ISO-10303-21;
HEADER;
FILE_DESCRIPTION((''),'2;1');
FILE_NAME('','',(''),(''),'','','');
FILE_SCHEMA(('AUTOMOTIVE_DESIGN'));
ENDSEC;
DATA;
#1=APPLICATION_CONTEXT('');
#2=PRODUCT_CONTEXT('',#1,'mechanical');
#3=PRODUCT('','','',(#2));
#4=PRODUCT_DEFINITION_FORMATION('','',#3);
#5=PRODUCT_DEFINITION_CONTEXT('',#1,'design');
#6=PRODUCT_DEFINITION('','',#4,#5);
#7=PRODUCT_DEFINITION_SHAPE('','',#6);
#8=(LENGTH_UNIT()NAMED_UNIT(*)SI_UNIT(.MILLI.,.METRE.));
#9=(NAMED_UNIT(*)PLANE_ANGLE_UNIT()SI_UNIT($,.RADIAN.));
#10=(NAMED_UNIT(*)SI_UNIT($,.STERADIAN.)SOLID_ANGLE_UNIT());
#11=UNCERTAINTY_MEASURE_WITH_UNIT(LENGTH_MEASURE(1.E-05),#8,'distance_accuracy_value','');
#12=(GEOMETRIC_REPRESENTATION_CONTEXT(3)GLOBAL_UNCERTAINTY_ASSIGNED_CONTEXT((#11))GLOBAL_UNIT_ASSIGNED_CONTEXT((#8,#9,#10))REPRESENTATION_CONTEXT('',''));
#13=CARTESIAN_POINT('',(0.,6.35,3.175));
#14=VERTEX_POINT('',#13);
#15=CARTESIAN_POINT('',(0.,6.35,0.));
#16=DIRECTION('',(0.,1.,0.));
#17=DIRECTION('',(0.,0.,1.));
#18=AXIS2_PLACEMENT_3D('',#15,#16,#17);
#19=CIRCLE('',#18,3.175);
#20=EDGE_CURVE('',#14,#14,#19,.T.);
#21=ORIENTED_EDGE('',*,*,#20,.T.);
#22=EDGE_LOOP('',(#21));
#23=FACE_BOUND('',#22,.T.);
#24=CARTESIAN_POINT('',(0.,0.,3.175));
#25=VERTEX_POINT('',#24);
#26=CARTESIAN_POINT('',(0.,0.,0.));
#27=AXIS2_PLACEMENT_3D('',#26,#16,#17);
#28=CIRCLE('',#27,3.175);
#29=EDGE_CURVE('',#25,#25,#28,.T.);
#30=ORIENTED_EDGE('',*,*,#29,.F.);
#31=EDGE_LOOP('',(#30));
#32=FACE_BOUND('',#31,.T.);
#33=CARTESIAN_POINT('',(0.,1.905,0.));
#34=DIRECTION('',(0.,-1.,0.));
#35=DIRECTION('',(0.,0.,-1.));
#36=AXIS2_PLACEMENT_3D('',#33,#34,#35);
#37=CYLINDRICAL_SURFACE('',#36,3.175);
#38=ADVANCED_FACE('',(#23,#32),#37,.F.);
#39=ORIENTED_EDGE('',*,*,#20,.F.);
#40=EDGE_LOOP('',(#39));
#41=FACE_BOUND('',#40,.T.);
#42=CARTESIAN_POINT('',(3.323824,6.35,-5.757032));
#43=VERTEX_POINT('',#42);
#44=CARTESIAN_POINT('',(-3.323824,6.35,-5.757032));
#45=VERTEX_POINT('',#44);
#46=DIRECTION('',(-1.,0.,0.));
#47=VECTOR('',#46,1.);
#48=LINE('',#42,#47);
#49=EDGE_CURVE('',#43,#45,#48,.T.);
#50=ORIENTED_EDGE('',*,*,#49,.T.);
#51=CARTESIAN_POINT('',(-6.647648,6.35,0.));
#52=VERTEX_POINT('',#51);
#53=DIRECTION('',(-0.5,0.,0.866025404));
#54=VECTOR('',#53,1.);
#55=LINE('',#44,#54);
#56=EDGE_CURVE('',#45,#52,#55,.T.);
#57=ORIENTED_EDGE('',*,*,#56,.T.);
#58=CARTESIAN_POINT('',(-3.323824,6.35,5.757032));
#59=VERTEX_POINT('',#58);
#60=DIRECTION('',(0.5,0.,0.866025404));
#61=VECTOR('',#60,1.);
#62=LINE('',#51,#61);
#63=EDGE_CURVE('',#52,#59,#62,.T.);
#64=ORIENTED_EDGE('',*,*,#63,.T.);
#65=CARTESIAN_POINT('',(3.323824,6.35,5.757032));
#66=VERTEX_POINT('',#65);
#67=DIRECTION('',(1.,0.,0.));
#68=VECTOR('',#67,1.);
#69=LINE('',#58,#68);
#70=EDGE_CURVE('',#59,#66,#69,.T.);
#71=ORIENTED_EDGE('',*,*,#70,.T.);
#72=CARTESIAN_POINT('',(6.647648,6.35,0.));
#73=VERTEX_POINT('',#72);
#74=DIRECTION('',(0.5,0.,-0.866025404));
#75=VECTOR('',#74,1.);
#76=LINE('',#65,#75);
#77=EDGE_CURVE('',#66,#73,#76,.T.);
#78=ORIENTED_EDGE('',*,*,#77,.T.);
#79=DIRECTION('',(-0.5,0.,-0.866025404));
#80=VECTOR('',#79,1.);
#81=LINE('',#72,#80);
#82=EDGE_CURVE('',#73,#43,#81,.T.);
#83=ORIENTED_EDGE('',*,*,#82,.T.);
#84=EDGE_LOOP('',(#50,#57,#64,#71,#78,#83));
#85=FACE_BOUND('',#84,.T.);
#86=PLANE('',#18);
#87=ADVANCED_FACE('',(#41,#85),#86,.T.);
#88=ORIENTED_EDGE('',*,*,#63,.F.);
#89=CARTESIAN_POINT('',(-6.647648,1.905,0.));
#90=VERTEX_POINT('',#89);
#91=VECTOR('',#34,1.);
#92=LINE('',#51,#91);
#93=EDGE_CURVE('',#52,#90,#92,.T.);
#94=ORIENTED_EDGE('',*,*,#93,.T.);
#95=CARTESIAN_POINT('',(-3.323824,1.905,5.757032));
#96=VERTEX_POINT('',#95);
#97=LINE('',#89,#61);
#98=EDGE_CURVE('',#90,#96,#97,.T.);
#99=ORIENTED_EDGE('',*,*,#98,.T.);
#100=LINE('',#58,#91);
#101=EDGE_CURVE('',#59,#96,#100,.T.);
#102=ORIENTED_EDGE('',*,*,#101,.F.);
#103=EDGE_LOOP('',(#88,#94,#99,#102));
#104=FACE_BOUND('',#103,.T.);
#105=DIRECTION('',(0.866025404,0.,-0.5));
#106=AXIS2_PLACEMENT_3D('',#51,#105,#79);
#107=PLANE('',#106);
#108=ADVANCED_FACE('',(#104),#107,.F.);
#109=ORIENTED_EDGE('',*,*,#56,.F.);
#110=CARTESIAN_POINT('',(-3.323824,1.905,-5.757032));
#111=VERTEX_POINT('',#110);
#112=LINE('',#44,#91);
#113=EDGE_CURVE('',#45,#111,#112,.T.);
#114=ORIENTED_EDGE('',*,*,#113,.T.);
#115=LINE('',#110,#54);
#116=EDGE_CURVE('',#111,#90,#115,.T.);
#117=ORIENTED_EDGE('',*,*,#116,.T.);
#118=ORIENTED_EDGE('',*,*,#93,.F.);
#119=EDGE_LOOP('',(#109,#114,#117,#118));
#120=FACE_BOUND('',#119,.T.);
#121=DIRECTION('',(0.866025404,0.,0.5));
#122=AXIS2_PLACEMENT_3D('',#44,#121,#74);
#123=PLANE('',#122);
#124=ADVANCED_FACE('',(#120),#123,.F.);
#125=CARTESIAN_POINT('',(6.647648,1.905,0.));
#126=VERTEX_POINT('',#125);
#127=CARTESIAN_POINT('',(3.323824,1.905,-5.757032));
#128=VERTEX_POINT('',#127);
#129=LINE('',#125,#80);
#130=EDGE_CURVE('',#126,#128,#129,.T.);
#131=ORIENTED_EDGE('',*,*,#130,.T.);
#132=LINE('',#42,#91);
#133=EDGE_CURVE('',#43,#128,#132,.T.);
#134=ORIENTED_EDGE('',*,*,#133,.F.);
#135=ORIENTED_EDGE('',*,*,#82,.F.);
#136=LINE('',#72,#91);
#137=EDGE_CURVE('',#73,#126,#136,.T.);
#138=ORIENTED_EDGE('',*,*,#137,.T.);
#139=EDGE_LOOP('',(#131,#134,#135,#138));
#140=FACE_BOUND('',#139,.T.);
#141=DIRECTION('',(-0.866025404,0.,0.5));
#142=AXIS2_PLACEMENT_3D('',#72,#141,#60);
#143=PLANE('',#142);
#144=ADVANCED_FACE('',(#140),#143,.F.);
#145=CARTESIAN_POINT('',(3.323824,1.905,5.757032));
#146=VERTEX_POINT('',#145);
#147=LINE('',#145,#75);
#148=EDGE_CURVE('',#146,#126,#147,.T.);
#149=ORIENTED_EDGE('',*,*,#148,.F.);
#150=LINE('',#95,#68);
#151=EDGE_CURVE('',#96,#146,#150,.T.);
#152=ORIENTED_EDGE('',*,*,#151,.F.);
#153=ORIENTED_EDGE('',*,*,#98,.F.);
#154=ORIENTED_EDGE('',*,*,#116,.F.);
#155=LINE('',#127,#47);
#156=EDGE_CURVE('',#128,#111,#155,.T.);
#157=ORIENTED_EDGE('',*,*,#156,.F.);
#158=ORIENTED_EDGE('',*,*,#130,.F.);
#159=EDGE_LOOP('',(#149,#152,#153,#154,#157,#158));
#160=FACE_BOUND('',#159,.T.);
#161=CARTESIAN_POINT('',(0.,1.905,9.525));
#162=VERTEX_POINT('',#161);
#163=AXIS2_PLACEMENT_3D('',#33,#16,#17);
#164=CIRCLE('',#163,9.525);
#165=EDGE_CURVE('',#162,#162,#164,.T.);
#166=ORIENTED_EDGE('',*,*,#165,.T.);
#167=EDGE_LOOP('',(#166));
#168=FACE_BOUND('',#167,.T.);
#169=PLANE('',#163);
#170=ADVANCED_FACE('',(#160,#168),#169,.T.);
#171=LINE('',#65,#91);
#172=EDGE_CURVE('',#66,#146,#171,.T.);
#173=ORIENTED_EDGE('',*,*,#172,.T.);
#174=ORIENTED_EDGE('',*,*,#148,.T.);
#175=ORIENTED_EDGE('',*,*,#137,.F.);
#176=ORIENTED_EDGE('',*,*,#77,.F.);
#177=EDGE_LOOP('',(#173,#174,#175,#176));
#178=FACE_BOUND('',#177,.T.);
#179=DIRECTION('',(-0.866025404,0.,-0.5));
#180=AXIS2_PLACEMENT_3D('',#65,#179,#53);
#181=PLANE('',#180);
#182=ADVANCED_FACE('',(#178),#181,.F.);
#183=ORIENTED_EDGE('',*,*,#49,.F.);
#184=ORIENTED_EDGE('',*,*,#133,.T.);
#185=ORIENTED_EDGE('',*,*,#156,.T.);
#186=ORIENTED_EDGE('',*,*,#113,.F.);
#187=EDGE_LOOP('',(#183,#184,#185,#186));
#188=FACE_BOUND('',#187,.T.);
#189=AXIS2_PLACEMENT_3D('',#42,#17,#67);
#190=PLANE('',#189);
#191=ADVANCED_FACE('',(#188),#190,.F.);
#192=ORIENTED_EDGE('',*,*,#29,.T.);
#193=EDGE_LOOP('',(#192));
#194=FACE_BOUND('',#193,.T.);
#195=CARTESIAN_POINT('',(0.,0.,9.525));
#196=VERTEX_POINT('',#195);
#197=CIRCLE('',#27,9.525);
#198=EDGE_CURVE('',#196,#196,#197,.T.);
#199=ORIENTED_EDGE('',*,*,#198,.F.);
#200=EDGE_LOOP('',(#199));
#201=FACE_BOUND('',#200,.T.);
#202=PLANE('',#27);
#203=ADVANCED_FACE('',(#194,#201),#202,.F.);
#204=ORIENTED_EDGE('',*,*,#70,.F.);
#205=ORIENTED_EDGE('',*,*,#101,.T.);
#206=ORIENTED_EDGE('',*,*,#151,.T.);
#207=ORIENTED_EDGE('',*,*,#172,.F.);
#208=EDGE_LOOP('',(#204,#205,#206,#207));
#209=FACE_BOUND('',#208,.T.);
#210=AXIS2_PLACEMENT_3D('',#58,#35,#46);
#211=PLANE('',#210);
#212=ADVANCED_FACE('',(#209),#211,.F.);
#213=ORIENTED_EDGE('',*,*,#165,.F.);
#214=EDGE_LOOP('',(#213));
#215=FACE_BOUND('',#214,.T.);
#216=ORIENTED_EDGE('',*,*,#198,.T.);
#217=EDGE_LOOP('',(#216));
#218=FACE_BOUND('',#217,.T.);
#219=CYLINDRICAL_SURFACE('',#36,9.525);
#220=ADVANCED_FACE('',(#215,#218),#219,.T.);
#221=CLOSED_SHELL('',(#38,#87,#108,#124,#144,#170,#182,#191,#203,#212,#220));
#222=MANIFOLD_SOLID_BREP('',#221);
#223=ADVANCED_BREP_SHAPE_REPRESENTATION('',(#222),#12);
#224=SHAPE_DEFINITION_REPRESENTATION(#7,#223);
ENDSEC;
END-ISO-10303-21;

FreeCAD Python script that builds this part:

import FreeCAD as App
import Part
import Sketcher
from FreeCAD import Vector
Q = App.Units.Quantity

doc = App.newDocument("Part")
body = doc.addObject("PartDesign::Body", "Body")

# Sketch on XZ plane
sketch1 = body.newObject("Sketcher::SketchObject", "Sketch")
sketch1.AttachmentSupport = (doc.getObject("XZ_Plane"), [""])
sketch1.MapMode = "FlatFace"
sketch1.addGeometry([
    Part.Circle(Vector(0, 0, 0), Vector(0, 0, 1), 9.525),
    Part.Circle(Vector(0, 0, 0), Vector(0, 0, 1), 3.175),
], False)
sketch1.addConstraint([
    Sketcher.Constraint("Coincident", 0, 3, -1, 1),
    Sketcher.Constraint("Coincident", 1, 3, -1, 1),
    Sketcher.Constraint("Diameter", 0, Q("0.75 in")),
    Sketcher.Constraint("Diameter", 1, Q("0.25 in")),
])
pad1 = body.newObject("PartDesign::Pad", "Pad")
pad1.Profile = sketch1
pad1.Length = Q("0.075 in")
pad1.Reversed = True

# Sketch on XZ plane
sketch2 = body.newObject("Sketcher::SketchObject", "Sketch001")
sketch2.AttachmentSupport = (doc.getObject("XZ_Plane"), [""])
sketch2.MapMode = "FlatFace"
sketch2.AttachmentOffset = App.Placement(Vector(0, 0, -0.075 * 25.4), App.Rotation())
sketch2.addGeometry([
    Part.LineSegment(Vector(6.647648, 0, 0), Vector(3.323824, -5.757032, 0)),  # 0
    Part.LineSegment(Vector(3.323824, -5.757032, 0), Vector(-3.323824, -5.757032, 0)),  # 1
    Part.LineSegment(Vector(-3.323824, -5.757032, 0), Vector(-6.647648, 0, 0)),  # 2
    Part.LineSegment(Vector(-6.647648, 0, 0), Vector(-3.323824, 5.757032, 0)),  # 3
    Part.LineSegment(Vector(-3.323824, 5.757032, 0), Vector(3.323824, 5.757032, 0)),  # 4
    Part.LineSegment(Vector(3.323824, 5.757032, 0), Vector(6.647648, 0, 0)),  # 5
    Part.Circle(Vector(0, 0, 0), Vector(0, 0, 1), 3.175),  # 6
], False)
sketch2.addConstraint([
    Sketcher.Constraint("Coincident", 0, 2, 1, 1),
    Sketcher.Constraint("Coincident", 1, 2, 2, 1),
    Sketcher.Constraint("Coincident", 2, 2, 3, 1),
    Sketcher.Constraint("Coincident", 3, 2, 4, 1),
    Sketcher.Constraint("Coincident", 4, 2, 5, 1),
    Sketcher.Constraint("Coincident", 5, 2, 0, 1),
    Sketcher.Constraint("Horizontal", 1),
    Sketcher.Constraint("Horizontal", 4),
    Sketcher.Constraint("Coincident", 6, 3, -1, 1),
    Sketcher.Constraint("Symmetric", 0, 2, 3, 2, -1, 1),
    Sketcher.Constraint("Symmetric", 2, 2, 5, 2, -1, 1),
    Sketcher.Constraint("PointOnObject", 2, 2, -1),
    Sketcher.Constraint("Parallel", 2, 5),
    Sketcher.Constraint("Vertical", 1, 2, 3, 2),
    Sketcher.Constraint("Diameter", 6, Q("0.25 in")),
    Sketcher.Constraint("Angle", 0, Q("-120 deg")),
    Sketcher.Constraint("DistanceX", 1, 2, 1, 1, 6.647648),
    Sketcher.Constraint("DistanceY", 0, 2, -1, 1, 5.757032),
])
pad2 = body.newObject("PartDesign::Pad", "Pad001")
pad2.Profile = sketch2
pad2.Length = Q("0.175 in")
pad2.Reversed = True

doc.recompute()
